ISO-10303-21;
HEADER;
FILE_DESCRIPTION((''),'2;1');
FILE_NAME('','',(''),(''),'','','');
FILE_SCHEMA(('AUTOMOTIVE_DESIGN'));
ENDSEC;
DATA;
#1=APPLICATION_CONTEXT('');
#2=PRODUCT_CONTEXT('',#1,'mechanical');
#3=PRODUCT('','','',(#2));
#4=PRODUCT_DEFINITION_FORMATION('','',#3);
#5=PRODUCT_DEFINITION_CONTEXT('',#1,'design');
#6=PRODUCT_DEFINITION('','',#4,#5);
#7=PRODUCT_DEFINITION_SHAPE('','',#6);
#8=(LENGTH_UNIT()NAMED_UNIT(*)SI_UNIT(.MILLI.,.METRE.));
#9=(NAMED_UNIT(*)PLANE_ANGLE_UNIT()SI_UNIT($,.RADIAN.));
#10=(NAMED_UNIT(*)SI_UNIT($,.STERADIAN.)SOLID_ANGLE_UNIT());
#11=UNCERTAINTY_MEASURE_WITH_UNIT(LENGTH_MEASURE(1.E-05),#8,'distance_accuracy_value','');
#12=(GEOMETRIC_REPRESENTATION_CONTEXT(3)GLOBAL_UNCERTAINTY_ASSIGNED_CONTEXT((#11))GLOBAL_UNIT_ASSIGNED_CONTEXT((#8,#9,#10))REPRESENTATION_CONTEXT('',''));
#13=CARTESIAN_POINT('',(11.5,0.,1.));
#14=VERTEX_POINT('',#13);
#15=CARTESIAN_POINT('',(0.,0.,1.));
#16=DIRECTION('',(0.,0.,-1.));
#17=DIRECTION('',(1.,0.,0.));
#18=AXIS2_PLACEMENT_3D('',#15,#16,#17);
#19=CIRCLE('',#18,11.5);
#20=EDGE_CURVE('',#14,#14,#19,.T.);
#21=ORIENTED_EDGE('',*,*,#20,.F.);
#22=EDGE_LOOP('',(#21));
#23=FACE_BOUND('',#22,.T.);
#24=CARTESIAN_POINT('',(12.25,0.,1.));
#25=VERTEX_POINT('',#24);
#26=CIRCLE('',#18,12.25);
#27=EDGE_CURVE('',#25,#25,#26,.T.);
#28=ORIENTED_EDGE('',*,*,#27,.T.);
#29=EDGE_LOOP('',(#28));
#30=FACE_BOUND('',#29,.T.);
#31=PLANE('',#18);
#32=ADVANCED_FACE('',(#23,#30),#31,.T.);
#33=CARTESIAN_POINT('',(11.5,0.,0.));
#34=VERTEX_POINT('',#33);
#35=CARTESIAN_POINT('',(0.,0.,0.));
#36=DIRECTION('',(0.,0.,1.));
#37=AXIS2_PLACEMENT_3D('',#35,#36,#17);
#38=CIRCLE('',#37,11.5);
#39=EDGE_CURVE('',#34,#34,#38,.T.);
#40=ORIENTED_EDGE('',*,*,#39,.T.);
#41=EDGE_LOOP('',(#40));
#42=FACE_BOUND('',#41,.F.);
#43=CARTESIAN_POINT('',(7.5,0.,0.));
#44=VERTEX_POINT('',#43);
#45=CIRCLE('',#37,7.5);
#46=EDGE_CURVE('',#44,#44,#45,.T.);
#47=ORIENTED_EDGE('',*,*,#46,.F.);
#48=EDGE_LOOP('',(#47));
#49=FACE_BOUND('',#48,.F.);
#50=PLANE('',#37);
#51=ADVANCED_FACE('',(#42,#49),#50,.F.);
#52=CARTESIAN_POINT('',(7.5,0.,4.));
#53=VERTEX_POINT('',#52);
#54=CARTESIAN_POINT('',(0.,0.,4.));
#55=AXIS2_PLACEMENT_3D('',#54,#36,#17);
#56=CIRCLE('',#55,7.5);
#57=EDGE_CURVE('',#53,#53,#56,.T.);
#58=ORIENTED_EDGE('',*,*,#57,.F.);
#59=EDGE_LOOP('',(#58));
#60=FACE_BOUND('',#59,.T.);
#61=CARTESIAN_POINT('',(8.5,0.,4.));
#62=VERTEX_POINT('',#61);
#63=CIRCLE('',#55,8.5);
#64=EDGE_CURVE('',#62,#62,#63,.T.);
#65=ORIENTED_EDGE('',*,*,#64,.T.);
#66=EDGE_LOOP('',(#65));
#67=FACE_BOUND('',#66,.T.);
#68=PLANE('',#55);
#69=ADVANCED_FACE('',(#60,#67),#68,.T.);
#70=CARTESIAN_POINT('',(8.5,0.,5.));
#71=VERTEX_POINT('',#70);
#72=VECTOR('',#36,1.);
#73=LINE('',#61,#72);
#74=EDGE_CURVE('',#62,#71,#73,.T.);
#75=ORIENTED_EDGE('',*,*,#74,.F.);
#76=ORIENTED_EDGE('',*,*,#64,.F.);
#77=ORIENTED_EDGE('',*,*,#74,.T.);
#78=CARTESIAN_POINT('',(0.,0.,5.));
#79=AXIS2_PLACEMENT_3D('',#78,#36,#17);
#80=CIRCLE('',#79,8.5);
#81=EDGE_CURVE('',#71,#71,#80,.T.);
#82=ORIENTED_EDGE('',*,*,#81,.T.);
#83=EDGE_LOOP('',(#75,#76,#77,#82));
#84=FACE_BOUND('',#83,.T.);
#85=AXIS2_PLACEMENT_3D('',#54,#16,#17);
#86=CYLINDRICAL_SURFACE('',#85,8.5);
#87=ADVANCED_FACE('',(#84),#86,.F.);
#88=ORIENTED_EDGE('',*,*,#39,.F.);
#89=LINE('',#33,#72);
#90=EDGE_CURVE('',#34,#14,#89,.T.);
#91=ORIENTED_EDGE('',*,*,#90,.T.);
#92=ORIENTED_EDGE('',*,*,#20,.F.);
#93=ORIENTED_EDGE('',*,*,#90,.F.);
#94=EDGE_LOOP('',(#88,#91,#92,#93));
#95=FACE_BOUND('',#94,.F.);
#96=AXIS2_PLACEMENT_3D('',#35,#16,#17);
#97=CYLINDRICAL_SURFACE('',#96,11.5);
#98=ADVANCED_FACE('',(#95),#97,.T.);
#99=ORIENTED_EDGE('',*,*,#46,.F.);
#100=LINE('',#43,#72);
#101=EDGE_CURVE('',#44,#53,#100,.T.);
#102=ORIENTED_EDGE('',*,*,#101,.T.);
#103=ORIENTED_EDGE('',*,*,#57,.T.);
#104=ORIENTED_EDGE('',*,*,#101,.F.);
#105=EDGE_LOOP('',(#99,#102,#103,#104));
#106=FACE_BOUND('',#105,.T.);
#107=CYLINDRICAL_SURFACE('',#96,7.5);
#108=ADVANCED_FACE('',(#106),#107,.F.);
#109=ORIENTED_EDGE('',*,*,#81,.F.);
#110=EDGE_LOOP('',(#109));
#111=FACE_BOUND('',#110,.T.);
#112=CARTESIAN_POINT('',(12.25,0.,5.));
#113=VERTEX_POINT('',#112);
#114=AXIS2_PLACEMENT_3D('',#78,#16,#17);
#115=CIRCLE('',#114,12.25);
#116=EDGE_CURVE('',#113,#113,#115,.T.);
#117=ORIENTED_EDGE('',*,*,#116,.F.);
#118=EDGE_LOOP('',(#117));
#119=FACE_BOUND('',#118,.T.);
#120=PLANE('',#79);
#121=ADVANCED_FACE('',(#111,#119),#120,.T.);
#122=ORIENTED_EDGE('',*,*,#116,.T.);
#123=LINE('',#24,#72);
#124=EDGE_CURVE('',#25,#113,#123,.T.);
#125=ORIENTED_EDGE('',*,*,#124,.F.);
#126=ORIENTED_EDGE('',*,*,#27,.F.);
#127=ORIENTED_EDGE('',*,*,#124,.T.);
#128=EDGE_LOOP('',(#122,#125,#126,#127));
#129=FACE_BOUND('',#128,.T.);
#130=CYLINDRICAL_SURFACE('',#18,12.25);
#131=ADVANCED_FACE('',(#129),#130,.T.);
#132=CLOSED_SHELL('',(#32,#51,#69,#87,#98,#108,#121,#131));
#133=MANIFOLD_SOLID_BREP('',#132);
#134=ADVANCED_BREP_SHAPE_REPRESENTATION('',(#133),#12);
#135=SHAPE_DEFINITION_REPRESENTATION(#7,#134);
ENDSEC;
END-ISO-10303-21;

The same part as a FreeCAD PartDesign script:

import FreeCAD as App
import Part
import Sketcher
Q = App.Units.Quantity

doc = App.newDocument("Part")
body = doc.addObject("PartDesign::Body", "Body")

# Sketch on XY plane
sketch1 = body.newObject("Sketcher::SketchObject", "Sketch")
sketch1.AttachmentSupport = (doc.getObject("XY_Plane"), [""])
sketch1.MapMode = "FlatFace"
sketch1.addGeometry(Part.Circle(App.Vector(0, 0, 0), App.Vector(0, 0, 1), 12), False)
sketch1.addGeometry(Part.Circle(App.Vector(0, 0, 0), App.Vector(0, 0, 1), 8), False)
sketch1.addConstraint(Sketcher.Constraint("Coincident", 0, 3, -1, 1))
sketch1.addConstraint(Sketcher.Constraint("Coincident", 1, 3, -1, 1))
sketch1.addConstraint(Sketcher.Constraint("Diameter", 0, Q("23 mm")))
sketch1.addConstraint(Sketcher.Constraint("Diameter", 1, Q("15 mm")))
pad1 = body.newObject("PartDesign::Pad", "Pad")
pad1.Profile = sketch1
pad1.Length = 4

# Sketch on XY plane
sketch2 = body.newObject("Sketcher::SketchObject", "Sketch001")
sketch2.AttachmentSupport = (doc.getObject("XY_Plane"), [""])
sketch2.MapMode = "FlatFace"
sketch2.AttachmentOffset = App.Placement(App.Vector(0, 0, 1), App.Rotation())
sketch2.addGeometry(Part.Circle(App.Vector(0, 0, 0), App.Vector(0, 0, 1), 12), False)
sketch2.addGeometry(Part.Circle(App.Vector(0, 0, 0), App.Vector(0, 0, 1), 12), False)
sketch2.addConstraint(Sketcher.Constraint("Coincident", 0, 3, -1, 1))
sketch2.addConstraint(Sketcher.Constraint("Coincident", 1, 3, -1, 1))
sketch2.addConstraint(Sketcher.Constraint("Diameter", 1, Q("23 mm")))
sketch2.addConstraint(Sketcher.Constraint("Diameter", 0, Q("24.5 mm")))
pad2 = body.newObject("PartDesign::Pad", "Pad001")
pad2.Profile = sketch2
pad2.Length = 4

# Sketch on XY plane
sketch3 = body.newObject("Sketcher::SketchObject", "Sketch002")
sketch3.AttachmentSupport = (doc.getObject("XY_Plane"), [""])
sketch3.MapMode = "FlatFace"
sketch3.AttachmentOffset = App.Placement(App.Vector(0, 0, 4), App.Rotation())
sketch3.addGeometry(Part.Circle(App.Vector(0, 0, 0), App.Vector(0, 0, 1), 12), False)
sketch3.addGeometry(Part.Circle(App.Vector(0, 0, 0), App.Vector(0, 0, 1), 8), False)
sketch3.addConstraint(Sketcher.Constraint("Coincident", 0, 3, -1, 1))
sketch3.addConstraint(Sketcher.Constraint("Coincident", 1, 3, -1, 1))
sketch3.addConstraint(Sketcher.Constraint("Diameter", 0, Q("23 mm")))
sketch3.addConstraint(Sketcher.Constraint("Diameter", 1, Q("17 mm")))
pad3 = body.newObject("PartDesign::Pad", "Pad002")
pad3.Profile = sketch3
pad3.Length = 1

doc.recompute()
